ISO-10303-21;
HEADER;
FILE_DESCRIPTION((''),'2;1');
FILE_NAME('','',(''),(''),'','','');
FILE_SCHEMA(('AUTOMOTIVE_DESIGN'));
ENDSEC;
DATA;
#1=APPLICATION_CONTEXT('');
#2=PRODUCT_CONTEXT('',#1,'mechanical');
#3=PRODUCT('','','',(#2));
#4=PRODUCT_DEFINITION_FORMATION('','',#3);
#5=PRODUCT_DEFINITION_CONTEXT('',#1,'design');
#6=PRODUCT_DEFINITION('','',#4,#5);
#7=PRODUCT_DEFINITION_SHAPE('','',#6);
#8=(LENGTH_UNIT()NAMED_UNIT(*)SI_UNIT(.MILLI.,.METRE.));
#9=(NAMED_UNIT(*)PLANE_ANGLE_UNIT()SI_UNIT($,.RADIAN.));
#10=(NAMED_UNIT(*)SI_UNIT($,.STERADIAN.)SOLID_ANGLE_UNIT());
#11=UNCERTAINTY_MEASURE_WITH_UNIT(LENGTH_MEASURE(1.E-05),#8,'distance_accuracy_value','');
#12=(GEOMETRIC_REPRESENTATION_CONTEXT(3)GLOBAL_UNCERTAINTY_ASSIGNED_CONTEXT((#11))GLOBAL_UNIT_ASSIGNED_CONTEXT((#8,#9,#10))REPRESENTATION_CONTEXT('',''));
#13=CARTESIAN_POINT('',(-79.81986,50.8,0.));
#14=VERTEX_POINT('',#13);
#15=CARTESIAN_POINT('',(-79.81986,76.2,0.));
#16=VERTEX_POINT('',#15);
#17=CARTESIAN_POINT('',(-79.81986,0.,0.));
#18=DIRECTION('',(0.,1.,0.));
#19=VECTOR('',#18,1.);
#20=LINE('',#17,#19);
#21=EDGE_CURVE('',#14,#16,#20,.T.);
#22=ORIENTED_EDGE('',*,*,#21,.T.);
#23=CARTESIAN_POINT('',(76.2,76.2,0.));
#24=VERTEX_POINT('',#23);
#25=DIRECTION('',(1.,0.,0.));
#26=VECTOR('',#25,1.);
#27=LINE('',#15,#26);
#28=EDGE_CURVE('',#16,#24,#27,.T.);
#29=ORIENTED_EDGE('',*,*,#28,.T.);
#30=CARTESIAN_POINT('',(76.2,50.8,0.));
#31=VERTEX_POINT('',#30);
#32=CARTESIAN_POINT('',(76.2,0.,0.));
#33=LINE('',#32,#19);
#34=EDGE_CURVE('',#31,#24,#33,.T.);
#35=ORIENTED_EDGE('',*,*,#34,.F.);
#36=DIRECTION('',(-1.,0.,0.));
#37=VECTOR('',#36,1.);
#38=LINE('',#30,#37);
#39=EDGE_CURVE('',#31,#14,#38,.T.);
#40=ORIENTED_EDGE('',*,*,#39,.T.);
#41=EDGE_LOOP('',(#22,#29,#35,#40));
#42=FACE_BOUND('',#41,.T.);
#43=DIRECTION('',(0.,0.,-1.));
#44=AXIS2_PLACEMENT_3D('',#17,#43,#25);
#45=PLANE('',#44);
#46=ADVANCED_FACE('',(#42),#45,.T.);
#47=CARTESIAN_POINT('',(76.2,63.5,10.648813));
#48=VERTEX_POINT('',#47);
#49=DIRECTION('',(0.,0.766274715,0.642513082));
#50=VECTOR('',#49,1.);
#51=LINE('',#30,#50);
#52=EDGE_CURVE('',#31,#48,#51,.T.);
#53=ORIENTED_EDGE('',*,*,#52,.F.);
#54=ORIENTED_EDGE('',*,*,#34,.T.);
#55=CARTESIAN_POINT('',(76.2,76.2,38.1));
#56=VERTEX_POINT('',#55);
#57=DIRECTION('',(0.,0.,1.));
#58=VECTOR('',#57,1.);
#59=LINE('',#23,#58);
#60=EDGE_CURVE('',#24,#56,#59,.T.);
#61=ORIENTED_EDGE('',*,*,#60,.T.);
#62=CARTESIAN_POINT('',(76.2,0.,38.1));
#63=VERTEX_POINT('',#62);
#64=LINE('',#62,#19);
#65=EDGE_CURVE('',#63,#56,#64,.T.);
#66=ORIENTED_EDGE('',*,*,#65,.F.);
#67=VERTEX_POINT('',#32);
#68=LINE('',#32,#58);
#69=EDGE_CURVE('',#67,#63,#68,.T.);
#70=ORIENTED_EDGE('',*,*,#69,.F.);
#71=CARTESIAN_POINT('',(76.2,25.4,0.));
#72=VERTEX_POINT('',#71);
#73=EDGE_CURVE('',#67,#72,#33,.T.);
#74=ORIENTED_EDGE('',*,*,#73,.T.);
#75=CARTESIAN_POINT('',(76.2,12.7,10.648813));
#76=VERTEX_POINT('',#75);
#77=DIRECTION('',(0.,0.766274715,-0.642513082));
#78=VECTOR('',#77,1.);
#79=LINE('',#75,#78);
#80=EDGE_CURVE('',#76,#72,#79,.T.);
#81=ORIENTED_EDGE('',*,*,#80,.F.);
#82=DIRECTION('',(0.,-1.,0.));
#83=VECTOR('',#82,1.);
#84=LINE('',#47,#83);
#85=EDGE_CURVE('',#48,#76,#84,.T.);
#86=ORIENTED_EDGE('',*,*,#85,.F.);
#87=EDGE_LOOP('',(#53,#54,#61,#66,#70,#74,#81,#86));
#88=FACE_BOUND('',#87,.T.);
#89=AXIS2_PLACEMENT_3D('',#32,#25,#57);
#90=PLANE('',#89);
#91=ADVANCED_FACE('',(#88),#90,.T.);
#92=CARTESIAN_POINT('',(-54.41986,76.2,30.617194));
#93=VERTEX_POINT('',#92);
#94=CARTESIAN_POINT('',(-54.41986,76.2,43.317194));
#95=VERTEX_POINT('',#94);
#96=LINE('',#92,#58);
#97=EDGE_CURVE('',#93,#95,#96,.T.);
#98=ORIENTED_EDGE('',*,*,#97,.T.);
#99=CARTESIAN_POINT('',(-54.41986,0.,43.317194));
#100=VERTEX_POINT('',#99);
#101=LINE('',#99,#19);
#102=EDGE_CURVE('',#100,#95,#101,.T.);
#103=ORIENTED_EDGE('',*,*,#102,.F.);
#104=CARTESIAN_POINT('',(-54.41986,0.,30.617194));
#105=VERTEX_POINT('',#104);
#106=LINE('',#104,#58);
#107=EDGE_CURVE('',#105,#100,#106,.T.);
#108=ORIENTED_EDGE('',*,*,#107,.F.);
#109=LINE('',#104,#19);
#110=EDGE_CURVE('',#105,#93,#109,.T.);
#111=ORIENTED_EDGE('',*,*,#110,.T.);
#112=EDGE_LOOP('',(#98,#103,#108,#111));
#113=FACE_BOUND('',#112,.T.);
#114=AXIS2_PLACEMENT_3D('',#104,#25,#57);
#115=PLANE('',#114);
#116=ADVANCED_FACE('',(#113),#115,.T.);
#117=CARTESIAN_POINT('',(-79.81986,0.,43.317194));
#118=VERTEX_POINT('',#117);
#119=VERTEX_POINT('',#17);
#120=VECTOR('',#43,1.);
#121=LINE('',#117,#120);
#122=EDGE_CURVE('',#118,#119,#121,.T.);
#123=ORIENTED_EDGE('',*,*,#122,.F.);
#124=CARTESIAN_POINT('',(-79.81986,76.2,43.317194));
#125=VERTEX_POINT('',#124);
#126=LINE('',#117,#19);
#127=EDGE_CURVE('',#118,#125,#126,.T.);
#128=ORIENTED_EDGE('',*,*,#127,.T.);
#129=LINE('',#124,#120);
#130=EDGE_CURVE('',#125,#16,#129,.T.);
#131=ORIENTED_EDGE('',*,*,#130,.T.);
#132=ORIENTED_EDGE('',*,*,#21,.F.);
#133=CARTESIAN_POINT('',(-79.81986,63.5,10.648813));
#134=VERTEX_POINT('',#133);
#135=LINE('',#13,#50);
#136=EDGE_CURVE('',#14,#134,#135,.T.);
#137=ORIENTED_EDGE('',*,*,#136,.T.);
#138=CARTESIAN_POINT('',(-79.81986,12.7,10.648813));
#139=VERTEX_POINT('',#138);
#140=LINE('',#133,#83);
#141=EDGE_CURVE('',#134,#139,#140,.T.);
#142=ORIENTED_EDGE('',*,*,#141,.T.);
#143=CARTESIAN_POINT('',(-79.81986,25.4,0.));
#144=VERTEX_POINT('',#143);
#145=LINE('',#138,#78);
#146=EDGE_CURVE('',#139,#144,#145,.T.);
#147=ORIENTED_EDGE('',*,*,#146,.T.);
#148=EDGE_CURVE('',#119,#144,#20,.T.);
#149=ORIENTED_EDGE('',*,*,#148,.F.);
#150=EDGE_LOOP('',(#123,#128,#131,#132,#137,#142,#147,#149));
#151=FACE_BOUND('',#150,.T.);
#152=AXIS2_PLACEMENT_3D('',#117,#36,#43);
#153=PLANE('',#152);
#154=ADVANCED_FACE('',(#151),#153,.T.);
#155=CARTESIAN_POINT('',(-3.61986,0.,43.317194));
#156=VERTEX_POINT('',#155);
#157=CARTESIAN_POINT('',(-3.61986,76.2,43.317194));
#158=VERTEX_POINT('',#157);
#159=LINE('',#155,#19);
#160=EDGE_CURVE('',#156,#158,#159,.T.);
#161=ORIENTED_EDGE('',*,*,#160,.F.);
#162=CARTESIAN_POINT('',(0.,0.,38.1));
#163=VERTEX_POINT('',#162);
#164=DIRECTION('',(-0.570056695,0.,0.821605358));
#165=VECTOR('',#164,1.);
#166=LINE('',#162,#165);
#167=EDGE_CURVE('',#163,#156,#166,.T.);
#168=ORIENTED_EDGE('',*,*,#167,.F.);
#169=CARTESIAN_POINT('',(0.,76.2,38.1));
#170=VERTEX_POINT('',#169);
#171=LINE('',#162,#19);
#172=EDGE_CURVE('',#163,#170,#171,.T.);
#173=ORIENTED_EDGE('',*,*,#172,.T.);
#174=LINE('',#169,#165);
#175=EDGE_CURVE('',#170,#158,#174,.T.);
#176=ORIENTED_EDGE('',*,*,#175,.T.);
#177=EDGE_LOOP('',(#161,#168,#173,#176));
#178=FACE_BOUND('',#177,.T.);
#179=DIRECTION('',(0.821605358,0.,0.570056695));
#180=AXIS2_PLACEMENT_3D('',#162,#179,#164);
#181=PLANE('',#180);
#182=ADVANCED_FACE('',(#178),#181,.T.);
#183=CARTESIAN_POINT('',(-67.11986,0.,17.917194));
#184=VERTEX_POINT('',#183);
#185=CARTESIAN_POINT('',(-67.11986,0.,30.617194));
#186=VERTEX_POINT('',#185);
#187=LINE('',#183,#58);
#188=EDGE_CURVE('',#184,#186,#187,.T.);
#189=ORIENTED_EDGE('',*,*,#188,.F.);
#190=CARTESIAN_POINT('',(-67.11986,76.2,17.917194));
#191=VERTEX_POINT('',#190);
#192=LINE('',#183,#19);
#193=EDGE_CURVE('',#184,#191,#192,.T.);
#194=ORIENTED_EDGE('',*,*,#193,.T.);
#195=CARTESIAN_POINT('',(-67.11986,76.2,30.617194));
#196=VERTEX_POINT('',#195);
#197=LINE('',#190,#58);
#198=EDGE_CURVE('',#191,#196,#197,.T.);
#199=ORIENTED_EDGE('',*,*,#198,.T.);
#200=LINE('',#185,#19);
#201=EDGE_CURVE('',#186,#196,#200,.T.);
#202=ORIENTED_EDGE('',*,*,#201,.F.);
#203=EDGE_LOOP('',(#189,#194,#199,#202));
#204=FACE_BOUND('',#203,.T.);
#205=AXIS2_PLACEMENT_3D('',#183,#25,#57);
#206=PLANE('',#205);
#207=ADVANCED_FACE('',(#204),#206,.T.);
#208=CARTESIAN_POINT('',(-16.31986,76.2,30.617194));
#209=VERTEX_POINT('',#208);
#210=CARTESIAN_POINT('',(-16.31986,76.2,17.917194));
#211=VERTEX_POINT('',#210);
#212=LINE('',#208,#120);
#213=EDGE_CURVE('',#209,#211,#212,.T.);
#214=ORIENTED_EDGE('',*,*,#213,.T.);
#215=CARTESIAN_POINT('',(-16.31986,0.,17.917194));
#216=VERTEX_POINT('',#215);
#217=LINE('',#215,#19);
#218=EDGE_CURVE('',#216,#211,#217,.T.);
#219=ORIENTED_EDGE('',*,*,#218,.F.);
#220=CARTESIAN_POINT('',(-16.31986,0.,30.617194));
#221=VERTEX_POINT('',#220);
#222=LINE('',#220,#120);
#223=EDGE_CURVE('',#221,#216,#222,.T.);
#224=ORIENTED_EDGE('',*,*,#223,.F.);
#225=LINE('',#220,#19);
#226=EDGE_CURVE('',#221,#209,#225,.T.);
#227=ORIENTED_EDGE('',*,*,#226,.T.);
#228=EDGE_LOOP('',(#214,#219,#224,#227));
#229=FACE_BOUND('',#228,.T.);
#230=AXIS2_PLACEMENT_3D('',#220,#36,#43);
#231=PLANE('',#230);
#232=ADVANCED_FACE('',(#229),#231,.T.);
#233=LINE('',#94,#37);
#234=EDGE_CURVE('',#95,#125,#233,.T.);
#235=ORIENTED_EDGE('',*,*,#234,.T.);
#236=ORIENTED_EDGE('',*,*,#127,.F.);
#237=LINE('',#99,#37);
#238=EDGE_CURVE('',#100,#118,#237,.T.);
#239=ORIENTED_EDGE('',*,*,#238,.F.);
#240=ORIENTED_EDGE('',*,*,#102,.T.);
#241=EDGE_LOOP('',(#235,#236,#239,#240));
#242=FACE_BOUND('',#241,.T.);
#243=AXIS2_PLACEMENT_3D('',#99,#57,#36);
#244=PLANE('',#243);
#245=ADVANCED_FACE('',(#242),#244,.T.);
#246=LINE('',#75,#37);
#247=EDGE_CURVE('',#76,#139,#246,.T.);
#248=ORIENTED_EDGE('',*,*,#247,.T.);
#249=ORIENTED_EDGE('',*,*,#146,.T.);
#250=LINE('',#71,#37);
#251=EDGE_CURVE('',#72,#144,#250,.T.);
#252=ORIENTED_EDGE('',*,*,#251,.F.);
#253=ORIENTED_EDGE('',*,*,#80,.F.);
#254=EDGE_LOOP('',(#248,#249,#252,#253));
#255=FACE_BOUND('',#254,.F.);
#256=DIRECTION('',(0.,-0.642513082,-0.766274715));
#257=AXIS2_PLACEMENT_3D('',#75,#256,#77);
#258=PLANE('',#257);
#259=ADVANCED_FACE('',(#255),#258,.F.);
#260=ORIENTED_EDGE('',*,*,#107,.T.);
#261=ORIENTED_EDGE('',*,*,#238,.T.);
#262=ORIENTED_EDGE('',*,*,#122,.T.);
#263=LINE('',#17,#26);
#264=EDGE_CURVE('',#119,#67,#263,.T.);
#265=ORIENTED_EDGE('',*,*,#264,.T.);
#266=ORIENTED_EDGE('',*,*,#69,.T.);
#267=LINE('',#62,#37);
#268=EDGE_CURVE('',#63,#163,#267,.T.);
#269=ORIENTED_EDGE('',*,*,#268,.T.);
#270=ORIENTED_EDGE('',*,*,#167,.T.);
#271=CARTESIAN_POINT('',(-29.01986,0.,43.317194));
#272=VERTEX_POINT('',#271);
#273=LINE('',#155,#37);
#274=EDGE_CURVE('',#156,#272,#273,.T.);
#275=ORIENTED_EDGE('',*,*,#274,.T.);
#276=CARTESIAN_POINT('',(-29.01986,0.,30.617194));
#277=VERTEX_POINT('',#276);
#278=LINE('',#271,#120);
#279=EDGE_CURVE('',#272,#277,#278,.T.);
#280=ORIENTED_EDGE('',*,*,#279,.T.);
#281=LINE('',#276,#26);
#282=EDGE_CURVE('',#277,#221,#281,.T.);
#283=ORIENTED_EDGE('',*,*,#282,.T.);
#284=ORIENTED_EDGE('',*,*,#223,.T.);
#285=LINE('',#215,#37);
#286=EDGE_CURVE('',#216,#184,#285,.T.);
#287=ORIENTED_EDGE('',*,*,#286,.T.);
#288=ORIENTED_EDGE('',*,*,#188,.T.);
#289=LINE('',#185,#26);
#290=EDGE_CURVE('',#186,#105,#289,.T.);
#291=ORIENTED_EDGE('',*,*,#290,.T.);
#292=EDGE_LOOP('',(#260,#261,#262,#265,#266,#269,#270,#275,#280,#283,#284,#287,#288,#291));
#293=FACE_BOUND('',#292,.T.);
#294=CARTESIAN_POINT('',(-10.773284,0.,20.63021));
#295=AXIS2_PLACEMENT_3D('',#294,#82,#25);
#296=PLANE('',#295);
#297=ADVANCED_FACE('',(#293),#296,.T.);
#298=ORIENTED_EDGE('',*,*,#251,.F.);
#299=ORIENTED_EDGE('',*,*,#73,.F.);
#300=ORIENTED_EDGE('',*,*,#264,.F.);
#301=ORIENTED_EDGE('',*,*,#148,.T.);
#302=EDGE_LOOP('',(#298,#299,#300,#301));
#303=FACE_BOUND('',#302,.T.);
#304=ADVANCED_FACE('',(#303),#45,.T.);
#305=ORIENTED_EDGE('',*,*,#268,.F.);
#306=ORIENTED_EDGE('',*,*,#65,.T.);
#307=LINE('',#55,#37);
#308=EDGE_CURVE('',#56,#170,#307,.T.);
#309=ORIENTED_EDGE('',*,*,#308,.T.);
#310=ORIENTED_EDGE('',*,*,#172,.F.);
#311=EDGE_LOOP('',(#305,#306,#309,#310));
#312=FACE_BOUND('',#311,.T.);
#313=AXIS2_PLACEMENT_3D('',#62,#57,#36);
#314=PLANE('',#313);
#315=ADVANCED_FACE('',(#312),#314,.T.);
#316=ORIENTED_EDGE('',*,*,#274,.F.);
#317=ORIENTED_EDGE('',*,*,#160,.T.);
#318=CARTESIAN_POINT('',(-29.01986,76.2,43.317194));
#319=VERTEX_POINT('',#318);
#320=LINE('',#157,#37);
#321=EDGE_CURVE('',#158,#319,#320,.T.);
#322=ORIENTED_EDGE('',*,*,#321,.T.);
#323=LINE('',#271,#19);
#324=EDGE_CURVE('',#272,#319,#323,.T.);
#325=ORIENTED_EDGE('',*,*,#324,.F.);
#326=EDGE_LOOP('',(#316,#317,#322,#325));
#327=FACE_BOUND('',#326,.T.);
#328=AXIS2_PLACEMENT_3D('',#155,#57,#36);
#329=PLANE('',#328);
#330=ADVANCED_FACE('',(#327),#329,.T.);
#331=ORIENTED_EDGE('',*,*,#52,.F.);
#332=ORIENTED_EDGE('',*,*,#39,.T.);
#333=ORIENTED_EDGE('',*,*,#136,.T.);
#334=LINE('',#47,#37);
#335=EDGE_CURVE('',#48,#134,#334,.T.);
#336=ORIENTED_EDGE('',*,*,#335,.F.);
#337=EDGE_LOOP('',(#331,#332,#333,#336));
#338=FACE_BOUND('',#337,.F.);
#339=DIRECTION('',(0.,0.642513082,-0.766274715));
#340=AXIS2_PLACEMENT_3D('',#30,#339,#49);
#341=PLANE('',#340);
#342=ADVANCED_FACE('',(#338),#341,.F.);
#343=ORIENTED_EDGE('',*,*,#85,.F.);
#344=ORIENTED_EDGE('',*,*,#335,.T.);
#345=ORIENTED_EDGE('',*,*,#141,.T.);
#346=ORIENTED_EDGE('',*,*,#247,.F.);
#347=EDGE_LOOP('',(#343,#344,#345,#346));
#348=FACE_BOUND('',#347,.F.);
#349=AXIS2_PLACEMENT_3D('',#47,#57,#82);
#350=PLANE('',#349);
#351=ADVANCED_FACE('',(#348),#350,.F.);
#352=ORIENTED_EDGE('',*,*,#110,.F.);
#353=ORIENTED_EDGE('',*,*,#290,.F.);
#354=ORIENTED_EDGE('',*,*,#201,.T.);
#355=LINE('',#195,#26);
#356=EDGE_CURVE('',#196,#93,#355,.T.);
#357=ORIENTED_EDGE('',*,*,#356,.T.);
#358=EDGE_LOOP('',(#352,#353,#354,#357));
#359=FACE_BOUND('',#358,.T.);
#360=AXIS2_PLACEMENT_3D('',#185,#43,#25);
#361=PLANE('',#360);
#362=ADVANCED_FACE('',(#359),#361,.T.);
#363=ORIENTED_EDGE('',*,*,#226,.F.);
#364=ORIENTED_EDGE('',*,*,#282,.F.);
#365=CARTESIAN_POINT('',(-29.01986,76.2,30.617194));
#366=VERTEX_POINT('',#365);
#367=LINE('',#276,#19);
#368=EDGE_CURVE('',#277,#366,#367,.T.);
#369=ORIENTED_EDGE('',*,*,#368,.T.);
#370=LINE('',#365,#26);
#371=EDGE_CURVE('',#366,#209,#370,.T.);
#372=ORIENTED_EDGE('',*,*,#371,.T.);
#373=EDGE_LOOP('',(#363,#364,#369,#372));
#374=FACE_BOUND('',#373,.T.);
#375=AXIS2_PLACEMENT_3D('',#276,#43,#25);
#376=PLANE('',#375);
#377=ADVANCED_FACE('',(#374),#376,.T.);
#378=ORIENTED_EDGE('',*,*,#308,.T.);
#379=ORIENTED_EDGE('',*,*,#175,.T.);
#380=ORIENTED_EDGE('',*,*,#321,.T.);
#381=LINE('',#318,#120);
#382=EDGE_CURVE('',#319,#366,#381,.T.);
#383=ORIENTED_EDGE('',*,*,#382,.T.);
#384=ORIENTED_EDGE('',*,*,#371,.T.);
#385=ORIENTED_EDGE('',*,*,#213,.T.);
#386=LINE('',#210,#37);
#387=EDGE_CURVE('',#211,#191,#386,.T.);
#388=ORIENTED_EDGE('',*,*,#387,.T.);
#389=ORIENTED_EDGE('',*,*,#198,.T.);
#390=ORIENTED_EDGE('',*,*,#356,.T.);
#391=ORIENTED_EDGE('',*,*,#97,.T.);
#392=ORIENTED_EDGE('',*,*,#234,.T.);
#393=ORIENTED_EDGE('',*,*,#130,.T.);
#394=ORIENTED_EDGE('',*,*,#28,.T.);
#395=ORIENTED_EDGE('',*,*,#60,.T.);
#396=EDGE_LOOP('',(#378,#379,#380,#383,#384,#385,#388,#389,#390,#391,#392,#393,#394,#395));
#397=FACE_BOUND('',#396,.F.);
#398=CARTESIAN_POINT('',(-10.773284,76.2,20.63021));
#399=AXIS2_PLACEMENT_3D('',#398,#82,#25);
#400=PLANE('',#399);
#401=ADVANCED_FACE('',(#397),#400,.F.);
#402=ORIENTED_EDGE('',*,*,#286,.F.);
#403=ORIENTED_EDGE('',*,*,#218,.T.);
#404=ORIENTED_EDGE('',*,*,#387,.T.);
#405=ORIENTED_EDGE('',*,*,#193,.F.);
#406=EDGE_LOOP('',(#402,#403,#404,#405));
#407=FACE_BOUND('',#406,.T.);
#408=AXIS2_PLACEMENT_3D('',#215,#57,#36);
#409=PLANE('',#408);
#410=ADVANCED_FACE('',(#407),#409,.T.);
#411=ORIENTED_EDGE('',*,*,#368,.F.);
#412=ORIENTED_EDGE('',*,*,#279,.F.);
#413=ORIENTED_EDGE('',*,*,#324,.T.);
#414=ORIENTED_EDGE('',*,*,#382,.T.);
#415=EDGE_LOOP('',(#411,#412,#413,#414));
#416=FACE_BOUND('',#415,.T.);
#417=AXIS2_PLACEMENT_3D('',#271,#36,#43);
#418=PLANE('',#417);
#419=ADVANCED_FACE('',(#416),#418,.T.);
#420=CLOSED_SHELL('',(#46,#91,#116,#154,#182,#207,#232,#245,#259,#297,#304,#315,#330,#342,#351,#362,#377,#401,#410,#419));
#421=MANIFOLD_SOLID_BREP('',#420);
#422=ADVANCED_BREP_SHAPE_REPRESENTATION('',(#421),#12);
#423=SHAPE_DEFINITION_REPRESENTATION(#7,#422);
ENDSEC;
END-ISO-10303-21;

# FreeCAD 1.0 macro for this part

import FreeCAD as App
import Part
import Sketcher
from FreeCAD import Vector
Q = App.Units.Quantity

doc = App.newDocument("Part")
body = doc.addObject("PartDesign::Body", "Body")

sketch1 = body.newObject("Sketcher::SketchObject", "Sketch")
sketch1.AttachmentSupport = (doc.getObject("XZ_Plane"), [""])
sketch1.MapMode = "FlatFace"
sketch1.addGeometry([
    Part.LineSegment(Vector(76, 0, 0), Vector(76, 38, 0)),
    Part.LineSegment(Vector(76, 38, 0), Vector(0, 38, 0)),
    Part.LineSegment(Vector(0, 38, 0), Vector(-4, 43, 0)),
    Part.LineSegment(Vector(-4, 43, 0), Vector(-29, 43, 0)),
    Part.LineSegment(Vector(-29, 43, 0), Vector(-29, 31, 0)),
    Part.LineSegment(Vector(-29, 31, 0), Vector(-16, 31, 0)),
    Part.LineSegment(Vector(-16, 31, 0), Vector(-16, 18, 0)),
    Part.LineSegment(Vector(-16, 18, 0), Vector(-67, 18, 0)),
    Part.LineSegment(Vector(-67, 18, 0), Vector(-67, 31, 0)),
    Part.LineSegment(Vector(-67, 31, 0), Vector(-54, 31, 0)),
    Part.LineSegment(Vector(-54, 31, 0), Vector(-54, 43, 0)),
    Part.LineSegment(Vector(-54, 43, 0), Vector(-80, 43, 0)),
    Part.LineSegment(Vector(-80, 43, 0), Vector(-80, 0, 0)),
    Part.LineSegment(Vector(-80, 0, 0), Vector(76, 0, 0)),
], False)
sketch1.addConstraint([
    Sketcher.Constraint("Coincident", 0, 2, 1, 1),
    Sketcher.Constraint("Coincident", 1, 2, 2, 1),
    Sketcher.Constraint("Coincident", 2, 2, 3, 1),
    Sketcher.Constraint("Coincident", 3, 2, 4, 1),
    Sketcher.Constraint("Coincident", 4, 2, 5, 1),
    Sketcher.Constraint("Coincident", 5, 2, 6, 1),
    Sketcher.Constraint("Coincident", 6, 2, 7, 1),
    Sketcher.Constraint("Coincident", 7, 2, 8, 1),
    Sketcher.Constraint("Coincident", 8, 2, 9, 1),
    Sketcher.Constraint("Coincident", 9, 2, 10, 1),
    Sketcher.Constraint("Coincident", 10, 2, 11, 1),
    Sketcher.Constraint("Coincident", 11, 2, 12, 1),
    Sketcher.Constraint("Coincident", 12, 2, 13, 1),
    Sketcher.Constraint("Coincident", 13, 2, 0, 1),
    Sketcher.Constraint("Vertical", 0),
    Sketcher.Constraint("Horizontal", 1),
    Sketcher.Constraint("Horizontal", 3),
    Sketcher.Constraint("Vertical", 4),
    Sketcher.Constraint("Horizontal", 5),
    Sketcher.Constraint("Vertical", 6),
    Sketcher.Constraint("Horizontal", 7),
    Sketcher.Constraint("Vertical", 8),
    Sketcher.Constraint("Horizontal", 9),
    Sketcher.Constraint("Vertical", 10),
    Sketcher.Constraint("Horizontal", 11),
    Sketcher.Constraint("Vertical", 12),
    Sketcher.Constraint("Horizontal", 13),
    Sketcher.Constraint("PointOnObject", 1, 2, -2),
    Sketcher.Constraint("PointOnObject", 12, 2, -1),
    Sketcher.Constraint("Horizontal", 5, 2, 8, 2),
    Sketcher.Constraint("Horizontal", 3, 2, 10, 2),
    Sketcher.Constraint("Equal", 5, 9),
    Sketcher.Constraint("Equal", 3, 11),
    Sketcher.Constraint("Equal", 9, 4),
    Sketcher.Constraint("Equal", 4, 6),
    Sketcher.Constraint("DistanceX", 1, 2, 1, 1, Q("3 in")),
    Sketcher.Constraint("DistanceX", 3, 2, 3, 1, Q("1 in")),
    Sketcher.Constraint("DistanceX", 7, 2, 7, 1, Q("2 in")),
    Sketcher.Constraint("DistanceX", 5, 1, 5, 2, Q("0.5 in")),
    Sketcher.Constraint("DistanceY", 0, 1, 0, 2, Q("1.5 in")),
    Sketcher.Constraint("Distance", 2, Q("0.25 in")),
    Sketcher.Constraint("DistanceX", 13, 1, 13, 2, Q("156.01986 mm")),
])
pad1 = body.newObject("PartDesign::Pad", "Pad")
pad1.Profile = sketch1
pad1.Length = Q("3 in")
pad1.Reversed = True

sketch2 = body.newObject("Sketcher::SketchObject", "Sketch001")
sketch2.AttachmentSupport = (doc.getObject("YZ_Plane"), [""])
sketch2.MapMode = "FlatFace"
sketch2.AttachmentOffset = App.Placement(Vector(0, 0, 3 * 25.4), App.Rotation())
sketch2.addGeometry([
    Part.LineSegment(Vector(64, 11, 0), Vector(13, 11, 0)),
    Part.LineSegment(Vector(13, 11, 0), Vector(25, 0, 0)),
    Part.LineSegment(Vector(25, 0, 0), Vector(51, 0, 0)),
    Part.LineSegment(Vector(51, 0, 0), Vector(64, 11, 0)),
], False)
sketch2.addConstraint([
    Sketcher.Constraint("Coincident", 0, 2, 1, 1),
    Sketcher.Constraint("Coincident", 1, 2, 2, 1),
    Sketcher.Constraint("Coincident", 2, 2, 3, 1),
    Sketcher.Constraint("Coincident", 3, 2, 0, 1),
    Sketcher.Constraint("Horizontal", 0),
    Sketcher.Constraint("Horizontal", 2),
    Sketcher.Constraint("PointOnObject", 1, 2, -1),
    Sketcher.Constraint("Equal", 1, 3),
    Sketcher.Constraint("DistanceX", 0, 2, 0, 1, Q("2 in")),
    Sketcher.Constraint("DistanceX", 2, 1, 2, 2, Q("1 in")),
    Sketcher.Constraint("DistanceX", -1, 1, 1, 2, Q("1 in")),
    Sketcher.Constraint("Distance", 1, Q("16.573691 mm")),
])
pocket1 = body.newObject("PartDesign::Pocket", "Pocket")
pocket1.Profile = sketch2
pocket1.Type = "ThroughAll"

doc.recompute()
